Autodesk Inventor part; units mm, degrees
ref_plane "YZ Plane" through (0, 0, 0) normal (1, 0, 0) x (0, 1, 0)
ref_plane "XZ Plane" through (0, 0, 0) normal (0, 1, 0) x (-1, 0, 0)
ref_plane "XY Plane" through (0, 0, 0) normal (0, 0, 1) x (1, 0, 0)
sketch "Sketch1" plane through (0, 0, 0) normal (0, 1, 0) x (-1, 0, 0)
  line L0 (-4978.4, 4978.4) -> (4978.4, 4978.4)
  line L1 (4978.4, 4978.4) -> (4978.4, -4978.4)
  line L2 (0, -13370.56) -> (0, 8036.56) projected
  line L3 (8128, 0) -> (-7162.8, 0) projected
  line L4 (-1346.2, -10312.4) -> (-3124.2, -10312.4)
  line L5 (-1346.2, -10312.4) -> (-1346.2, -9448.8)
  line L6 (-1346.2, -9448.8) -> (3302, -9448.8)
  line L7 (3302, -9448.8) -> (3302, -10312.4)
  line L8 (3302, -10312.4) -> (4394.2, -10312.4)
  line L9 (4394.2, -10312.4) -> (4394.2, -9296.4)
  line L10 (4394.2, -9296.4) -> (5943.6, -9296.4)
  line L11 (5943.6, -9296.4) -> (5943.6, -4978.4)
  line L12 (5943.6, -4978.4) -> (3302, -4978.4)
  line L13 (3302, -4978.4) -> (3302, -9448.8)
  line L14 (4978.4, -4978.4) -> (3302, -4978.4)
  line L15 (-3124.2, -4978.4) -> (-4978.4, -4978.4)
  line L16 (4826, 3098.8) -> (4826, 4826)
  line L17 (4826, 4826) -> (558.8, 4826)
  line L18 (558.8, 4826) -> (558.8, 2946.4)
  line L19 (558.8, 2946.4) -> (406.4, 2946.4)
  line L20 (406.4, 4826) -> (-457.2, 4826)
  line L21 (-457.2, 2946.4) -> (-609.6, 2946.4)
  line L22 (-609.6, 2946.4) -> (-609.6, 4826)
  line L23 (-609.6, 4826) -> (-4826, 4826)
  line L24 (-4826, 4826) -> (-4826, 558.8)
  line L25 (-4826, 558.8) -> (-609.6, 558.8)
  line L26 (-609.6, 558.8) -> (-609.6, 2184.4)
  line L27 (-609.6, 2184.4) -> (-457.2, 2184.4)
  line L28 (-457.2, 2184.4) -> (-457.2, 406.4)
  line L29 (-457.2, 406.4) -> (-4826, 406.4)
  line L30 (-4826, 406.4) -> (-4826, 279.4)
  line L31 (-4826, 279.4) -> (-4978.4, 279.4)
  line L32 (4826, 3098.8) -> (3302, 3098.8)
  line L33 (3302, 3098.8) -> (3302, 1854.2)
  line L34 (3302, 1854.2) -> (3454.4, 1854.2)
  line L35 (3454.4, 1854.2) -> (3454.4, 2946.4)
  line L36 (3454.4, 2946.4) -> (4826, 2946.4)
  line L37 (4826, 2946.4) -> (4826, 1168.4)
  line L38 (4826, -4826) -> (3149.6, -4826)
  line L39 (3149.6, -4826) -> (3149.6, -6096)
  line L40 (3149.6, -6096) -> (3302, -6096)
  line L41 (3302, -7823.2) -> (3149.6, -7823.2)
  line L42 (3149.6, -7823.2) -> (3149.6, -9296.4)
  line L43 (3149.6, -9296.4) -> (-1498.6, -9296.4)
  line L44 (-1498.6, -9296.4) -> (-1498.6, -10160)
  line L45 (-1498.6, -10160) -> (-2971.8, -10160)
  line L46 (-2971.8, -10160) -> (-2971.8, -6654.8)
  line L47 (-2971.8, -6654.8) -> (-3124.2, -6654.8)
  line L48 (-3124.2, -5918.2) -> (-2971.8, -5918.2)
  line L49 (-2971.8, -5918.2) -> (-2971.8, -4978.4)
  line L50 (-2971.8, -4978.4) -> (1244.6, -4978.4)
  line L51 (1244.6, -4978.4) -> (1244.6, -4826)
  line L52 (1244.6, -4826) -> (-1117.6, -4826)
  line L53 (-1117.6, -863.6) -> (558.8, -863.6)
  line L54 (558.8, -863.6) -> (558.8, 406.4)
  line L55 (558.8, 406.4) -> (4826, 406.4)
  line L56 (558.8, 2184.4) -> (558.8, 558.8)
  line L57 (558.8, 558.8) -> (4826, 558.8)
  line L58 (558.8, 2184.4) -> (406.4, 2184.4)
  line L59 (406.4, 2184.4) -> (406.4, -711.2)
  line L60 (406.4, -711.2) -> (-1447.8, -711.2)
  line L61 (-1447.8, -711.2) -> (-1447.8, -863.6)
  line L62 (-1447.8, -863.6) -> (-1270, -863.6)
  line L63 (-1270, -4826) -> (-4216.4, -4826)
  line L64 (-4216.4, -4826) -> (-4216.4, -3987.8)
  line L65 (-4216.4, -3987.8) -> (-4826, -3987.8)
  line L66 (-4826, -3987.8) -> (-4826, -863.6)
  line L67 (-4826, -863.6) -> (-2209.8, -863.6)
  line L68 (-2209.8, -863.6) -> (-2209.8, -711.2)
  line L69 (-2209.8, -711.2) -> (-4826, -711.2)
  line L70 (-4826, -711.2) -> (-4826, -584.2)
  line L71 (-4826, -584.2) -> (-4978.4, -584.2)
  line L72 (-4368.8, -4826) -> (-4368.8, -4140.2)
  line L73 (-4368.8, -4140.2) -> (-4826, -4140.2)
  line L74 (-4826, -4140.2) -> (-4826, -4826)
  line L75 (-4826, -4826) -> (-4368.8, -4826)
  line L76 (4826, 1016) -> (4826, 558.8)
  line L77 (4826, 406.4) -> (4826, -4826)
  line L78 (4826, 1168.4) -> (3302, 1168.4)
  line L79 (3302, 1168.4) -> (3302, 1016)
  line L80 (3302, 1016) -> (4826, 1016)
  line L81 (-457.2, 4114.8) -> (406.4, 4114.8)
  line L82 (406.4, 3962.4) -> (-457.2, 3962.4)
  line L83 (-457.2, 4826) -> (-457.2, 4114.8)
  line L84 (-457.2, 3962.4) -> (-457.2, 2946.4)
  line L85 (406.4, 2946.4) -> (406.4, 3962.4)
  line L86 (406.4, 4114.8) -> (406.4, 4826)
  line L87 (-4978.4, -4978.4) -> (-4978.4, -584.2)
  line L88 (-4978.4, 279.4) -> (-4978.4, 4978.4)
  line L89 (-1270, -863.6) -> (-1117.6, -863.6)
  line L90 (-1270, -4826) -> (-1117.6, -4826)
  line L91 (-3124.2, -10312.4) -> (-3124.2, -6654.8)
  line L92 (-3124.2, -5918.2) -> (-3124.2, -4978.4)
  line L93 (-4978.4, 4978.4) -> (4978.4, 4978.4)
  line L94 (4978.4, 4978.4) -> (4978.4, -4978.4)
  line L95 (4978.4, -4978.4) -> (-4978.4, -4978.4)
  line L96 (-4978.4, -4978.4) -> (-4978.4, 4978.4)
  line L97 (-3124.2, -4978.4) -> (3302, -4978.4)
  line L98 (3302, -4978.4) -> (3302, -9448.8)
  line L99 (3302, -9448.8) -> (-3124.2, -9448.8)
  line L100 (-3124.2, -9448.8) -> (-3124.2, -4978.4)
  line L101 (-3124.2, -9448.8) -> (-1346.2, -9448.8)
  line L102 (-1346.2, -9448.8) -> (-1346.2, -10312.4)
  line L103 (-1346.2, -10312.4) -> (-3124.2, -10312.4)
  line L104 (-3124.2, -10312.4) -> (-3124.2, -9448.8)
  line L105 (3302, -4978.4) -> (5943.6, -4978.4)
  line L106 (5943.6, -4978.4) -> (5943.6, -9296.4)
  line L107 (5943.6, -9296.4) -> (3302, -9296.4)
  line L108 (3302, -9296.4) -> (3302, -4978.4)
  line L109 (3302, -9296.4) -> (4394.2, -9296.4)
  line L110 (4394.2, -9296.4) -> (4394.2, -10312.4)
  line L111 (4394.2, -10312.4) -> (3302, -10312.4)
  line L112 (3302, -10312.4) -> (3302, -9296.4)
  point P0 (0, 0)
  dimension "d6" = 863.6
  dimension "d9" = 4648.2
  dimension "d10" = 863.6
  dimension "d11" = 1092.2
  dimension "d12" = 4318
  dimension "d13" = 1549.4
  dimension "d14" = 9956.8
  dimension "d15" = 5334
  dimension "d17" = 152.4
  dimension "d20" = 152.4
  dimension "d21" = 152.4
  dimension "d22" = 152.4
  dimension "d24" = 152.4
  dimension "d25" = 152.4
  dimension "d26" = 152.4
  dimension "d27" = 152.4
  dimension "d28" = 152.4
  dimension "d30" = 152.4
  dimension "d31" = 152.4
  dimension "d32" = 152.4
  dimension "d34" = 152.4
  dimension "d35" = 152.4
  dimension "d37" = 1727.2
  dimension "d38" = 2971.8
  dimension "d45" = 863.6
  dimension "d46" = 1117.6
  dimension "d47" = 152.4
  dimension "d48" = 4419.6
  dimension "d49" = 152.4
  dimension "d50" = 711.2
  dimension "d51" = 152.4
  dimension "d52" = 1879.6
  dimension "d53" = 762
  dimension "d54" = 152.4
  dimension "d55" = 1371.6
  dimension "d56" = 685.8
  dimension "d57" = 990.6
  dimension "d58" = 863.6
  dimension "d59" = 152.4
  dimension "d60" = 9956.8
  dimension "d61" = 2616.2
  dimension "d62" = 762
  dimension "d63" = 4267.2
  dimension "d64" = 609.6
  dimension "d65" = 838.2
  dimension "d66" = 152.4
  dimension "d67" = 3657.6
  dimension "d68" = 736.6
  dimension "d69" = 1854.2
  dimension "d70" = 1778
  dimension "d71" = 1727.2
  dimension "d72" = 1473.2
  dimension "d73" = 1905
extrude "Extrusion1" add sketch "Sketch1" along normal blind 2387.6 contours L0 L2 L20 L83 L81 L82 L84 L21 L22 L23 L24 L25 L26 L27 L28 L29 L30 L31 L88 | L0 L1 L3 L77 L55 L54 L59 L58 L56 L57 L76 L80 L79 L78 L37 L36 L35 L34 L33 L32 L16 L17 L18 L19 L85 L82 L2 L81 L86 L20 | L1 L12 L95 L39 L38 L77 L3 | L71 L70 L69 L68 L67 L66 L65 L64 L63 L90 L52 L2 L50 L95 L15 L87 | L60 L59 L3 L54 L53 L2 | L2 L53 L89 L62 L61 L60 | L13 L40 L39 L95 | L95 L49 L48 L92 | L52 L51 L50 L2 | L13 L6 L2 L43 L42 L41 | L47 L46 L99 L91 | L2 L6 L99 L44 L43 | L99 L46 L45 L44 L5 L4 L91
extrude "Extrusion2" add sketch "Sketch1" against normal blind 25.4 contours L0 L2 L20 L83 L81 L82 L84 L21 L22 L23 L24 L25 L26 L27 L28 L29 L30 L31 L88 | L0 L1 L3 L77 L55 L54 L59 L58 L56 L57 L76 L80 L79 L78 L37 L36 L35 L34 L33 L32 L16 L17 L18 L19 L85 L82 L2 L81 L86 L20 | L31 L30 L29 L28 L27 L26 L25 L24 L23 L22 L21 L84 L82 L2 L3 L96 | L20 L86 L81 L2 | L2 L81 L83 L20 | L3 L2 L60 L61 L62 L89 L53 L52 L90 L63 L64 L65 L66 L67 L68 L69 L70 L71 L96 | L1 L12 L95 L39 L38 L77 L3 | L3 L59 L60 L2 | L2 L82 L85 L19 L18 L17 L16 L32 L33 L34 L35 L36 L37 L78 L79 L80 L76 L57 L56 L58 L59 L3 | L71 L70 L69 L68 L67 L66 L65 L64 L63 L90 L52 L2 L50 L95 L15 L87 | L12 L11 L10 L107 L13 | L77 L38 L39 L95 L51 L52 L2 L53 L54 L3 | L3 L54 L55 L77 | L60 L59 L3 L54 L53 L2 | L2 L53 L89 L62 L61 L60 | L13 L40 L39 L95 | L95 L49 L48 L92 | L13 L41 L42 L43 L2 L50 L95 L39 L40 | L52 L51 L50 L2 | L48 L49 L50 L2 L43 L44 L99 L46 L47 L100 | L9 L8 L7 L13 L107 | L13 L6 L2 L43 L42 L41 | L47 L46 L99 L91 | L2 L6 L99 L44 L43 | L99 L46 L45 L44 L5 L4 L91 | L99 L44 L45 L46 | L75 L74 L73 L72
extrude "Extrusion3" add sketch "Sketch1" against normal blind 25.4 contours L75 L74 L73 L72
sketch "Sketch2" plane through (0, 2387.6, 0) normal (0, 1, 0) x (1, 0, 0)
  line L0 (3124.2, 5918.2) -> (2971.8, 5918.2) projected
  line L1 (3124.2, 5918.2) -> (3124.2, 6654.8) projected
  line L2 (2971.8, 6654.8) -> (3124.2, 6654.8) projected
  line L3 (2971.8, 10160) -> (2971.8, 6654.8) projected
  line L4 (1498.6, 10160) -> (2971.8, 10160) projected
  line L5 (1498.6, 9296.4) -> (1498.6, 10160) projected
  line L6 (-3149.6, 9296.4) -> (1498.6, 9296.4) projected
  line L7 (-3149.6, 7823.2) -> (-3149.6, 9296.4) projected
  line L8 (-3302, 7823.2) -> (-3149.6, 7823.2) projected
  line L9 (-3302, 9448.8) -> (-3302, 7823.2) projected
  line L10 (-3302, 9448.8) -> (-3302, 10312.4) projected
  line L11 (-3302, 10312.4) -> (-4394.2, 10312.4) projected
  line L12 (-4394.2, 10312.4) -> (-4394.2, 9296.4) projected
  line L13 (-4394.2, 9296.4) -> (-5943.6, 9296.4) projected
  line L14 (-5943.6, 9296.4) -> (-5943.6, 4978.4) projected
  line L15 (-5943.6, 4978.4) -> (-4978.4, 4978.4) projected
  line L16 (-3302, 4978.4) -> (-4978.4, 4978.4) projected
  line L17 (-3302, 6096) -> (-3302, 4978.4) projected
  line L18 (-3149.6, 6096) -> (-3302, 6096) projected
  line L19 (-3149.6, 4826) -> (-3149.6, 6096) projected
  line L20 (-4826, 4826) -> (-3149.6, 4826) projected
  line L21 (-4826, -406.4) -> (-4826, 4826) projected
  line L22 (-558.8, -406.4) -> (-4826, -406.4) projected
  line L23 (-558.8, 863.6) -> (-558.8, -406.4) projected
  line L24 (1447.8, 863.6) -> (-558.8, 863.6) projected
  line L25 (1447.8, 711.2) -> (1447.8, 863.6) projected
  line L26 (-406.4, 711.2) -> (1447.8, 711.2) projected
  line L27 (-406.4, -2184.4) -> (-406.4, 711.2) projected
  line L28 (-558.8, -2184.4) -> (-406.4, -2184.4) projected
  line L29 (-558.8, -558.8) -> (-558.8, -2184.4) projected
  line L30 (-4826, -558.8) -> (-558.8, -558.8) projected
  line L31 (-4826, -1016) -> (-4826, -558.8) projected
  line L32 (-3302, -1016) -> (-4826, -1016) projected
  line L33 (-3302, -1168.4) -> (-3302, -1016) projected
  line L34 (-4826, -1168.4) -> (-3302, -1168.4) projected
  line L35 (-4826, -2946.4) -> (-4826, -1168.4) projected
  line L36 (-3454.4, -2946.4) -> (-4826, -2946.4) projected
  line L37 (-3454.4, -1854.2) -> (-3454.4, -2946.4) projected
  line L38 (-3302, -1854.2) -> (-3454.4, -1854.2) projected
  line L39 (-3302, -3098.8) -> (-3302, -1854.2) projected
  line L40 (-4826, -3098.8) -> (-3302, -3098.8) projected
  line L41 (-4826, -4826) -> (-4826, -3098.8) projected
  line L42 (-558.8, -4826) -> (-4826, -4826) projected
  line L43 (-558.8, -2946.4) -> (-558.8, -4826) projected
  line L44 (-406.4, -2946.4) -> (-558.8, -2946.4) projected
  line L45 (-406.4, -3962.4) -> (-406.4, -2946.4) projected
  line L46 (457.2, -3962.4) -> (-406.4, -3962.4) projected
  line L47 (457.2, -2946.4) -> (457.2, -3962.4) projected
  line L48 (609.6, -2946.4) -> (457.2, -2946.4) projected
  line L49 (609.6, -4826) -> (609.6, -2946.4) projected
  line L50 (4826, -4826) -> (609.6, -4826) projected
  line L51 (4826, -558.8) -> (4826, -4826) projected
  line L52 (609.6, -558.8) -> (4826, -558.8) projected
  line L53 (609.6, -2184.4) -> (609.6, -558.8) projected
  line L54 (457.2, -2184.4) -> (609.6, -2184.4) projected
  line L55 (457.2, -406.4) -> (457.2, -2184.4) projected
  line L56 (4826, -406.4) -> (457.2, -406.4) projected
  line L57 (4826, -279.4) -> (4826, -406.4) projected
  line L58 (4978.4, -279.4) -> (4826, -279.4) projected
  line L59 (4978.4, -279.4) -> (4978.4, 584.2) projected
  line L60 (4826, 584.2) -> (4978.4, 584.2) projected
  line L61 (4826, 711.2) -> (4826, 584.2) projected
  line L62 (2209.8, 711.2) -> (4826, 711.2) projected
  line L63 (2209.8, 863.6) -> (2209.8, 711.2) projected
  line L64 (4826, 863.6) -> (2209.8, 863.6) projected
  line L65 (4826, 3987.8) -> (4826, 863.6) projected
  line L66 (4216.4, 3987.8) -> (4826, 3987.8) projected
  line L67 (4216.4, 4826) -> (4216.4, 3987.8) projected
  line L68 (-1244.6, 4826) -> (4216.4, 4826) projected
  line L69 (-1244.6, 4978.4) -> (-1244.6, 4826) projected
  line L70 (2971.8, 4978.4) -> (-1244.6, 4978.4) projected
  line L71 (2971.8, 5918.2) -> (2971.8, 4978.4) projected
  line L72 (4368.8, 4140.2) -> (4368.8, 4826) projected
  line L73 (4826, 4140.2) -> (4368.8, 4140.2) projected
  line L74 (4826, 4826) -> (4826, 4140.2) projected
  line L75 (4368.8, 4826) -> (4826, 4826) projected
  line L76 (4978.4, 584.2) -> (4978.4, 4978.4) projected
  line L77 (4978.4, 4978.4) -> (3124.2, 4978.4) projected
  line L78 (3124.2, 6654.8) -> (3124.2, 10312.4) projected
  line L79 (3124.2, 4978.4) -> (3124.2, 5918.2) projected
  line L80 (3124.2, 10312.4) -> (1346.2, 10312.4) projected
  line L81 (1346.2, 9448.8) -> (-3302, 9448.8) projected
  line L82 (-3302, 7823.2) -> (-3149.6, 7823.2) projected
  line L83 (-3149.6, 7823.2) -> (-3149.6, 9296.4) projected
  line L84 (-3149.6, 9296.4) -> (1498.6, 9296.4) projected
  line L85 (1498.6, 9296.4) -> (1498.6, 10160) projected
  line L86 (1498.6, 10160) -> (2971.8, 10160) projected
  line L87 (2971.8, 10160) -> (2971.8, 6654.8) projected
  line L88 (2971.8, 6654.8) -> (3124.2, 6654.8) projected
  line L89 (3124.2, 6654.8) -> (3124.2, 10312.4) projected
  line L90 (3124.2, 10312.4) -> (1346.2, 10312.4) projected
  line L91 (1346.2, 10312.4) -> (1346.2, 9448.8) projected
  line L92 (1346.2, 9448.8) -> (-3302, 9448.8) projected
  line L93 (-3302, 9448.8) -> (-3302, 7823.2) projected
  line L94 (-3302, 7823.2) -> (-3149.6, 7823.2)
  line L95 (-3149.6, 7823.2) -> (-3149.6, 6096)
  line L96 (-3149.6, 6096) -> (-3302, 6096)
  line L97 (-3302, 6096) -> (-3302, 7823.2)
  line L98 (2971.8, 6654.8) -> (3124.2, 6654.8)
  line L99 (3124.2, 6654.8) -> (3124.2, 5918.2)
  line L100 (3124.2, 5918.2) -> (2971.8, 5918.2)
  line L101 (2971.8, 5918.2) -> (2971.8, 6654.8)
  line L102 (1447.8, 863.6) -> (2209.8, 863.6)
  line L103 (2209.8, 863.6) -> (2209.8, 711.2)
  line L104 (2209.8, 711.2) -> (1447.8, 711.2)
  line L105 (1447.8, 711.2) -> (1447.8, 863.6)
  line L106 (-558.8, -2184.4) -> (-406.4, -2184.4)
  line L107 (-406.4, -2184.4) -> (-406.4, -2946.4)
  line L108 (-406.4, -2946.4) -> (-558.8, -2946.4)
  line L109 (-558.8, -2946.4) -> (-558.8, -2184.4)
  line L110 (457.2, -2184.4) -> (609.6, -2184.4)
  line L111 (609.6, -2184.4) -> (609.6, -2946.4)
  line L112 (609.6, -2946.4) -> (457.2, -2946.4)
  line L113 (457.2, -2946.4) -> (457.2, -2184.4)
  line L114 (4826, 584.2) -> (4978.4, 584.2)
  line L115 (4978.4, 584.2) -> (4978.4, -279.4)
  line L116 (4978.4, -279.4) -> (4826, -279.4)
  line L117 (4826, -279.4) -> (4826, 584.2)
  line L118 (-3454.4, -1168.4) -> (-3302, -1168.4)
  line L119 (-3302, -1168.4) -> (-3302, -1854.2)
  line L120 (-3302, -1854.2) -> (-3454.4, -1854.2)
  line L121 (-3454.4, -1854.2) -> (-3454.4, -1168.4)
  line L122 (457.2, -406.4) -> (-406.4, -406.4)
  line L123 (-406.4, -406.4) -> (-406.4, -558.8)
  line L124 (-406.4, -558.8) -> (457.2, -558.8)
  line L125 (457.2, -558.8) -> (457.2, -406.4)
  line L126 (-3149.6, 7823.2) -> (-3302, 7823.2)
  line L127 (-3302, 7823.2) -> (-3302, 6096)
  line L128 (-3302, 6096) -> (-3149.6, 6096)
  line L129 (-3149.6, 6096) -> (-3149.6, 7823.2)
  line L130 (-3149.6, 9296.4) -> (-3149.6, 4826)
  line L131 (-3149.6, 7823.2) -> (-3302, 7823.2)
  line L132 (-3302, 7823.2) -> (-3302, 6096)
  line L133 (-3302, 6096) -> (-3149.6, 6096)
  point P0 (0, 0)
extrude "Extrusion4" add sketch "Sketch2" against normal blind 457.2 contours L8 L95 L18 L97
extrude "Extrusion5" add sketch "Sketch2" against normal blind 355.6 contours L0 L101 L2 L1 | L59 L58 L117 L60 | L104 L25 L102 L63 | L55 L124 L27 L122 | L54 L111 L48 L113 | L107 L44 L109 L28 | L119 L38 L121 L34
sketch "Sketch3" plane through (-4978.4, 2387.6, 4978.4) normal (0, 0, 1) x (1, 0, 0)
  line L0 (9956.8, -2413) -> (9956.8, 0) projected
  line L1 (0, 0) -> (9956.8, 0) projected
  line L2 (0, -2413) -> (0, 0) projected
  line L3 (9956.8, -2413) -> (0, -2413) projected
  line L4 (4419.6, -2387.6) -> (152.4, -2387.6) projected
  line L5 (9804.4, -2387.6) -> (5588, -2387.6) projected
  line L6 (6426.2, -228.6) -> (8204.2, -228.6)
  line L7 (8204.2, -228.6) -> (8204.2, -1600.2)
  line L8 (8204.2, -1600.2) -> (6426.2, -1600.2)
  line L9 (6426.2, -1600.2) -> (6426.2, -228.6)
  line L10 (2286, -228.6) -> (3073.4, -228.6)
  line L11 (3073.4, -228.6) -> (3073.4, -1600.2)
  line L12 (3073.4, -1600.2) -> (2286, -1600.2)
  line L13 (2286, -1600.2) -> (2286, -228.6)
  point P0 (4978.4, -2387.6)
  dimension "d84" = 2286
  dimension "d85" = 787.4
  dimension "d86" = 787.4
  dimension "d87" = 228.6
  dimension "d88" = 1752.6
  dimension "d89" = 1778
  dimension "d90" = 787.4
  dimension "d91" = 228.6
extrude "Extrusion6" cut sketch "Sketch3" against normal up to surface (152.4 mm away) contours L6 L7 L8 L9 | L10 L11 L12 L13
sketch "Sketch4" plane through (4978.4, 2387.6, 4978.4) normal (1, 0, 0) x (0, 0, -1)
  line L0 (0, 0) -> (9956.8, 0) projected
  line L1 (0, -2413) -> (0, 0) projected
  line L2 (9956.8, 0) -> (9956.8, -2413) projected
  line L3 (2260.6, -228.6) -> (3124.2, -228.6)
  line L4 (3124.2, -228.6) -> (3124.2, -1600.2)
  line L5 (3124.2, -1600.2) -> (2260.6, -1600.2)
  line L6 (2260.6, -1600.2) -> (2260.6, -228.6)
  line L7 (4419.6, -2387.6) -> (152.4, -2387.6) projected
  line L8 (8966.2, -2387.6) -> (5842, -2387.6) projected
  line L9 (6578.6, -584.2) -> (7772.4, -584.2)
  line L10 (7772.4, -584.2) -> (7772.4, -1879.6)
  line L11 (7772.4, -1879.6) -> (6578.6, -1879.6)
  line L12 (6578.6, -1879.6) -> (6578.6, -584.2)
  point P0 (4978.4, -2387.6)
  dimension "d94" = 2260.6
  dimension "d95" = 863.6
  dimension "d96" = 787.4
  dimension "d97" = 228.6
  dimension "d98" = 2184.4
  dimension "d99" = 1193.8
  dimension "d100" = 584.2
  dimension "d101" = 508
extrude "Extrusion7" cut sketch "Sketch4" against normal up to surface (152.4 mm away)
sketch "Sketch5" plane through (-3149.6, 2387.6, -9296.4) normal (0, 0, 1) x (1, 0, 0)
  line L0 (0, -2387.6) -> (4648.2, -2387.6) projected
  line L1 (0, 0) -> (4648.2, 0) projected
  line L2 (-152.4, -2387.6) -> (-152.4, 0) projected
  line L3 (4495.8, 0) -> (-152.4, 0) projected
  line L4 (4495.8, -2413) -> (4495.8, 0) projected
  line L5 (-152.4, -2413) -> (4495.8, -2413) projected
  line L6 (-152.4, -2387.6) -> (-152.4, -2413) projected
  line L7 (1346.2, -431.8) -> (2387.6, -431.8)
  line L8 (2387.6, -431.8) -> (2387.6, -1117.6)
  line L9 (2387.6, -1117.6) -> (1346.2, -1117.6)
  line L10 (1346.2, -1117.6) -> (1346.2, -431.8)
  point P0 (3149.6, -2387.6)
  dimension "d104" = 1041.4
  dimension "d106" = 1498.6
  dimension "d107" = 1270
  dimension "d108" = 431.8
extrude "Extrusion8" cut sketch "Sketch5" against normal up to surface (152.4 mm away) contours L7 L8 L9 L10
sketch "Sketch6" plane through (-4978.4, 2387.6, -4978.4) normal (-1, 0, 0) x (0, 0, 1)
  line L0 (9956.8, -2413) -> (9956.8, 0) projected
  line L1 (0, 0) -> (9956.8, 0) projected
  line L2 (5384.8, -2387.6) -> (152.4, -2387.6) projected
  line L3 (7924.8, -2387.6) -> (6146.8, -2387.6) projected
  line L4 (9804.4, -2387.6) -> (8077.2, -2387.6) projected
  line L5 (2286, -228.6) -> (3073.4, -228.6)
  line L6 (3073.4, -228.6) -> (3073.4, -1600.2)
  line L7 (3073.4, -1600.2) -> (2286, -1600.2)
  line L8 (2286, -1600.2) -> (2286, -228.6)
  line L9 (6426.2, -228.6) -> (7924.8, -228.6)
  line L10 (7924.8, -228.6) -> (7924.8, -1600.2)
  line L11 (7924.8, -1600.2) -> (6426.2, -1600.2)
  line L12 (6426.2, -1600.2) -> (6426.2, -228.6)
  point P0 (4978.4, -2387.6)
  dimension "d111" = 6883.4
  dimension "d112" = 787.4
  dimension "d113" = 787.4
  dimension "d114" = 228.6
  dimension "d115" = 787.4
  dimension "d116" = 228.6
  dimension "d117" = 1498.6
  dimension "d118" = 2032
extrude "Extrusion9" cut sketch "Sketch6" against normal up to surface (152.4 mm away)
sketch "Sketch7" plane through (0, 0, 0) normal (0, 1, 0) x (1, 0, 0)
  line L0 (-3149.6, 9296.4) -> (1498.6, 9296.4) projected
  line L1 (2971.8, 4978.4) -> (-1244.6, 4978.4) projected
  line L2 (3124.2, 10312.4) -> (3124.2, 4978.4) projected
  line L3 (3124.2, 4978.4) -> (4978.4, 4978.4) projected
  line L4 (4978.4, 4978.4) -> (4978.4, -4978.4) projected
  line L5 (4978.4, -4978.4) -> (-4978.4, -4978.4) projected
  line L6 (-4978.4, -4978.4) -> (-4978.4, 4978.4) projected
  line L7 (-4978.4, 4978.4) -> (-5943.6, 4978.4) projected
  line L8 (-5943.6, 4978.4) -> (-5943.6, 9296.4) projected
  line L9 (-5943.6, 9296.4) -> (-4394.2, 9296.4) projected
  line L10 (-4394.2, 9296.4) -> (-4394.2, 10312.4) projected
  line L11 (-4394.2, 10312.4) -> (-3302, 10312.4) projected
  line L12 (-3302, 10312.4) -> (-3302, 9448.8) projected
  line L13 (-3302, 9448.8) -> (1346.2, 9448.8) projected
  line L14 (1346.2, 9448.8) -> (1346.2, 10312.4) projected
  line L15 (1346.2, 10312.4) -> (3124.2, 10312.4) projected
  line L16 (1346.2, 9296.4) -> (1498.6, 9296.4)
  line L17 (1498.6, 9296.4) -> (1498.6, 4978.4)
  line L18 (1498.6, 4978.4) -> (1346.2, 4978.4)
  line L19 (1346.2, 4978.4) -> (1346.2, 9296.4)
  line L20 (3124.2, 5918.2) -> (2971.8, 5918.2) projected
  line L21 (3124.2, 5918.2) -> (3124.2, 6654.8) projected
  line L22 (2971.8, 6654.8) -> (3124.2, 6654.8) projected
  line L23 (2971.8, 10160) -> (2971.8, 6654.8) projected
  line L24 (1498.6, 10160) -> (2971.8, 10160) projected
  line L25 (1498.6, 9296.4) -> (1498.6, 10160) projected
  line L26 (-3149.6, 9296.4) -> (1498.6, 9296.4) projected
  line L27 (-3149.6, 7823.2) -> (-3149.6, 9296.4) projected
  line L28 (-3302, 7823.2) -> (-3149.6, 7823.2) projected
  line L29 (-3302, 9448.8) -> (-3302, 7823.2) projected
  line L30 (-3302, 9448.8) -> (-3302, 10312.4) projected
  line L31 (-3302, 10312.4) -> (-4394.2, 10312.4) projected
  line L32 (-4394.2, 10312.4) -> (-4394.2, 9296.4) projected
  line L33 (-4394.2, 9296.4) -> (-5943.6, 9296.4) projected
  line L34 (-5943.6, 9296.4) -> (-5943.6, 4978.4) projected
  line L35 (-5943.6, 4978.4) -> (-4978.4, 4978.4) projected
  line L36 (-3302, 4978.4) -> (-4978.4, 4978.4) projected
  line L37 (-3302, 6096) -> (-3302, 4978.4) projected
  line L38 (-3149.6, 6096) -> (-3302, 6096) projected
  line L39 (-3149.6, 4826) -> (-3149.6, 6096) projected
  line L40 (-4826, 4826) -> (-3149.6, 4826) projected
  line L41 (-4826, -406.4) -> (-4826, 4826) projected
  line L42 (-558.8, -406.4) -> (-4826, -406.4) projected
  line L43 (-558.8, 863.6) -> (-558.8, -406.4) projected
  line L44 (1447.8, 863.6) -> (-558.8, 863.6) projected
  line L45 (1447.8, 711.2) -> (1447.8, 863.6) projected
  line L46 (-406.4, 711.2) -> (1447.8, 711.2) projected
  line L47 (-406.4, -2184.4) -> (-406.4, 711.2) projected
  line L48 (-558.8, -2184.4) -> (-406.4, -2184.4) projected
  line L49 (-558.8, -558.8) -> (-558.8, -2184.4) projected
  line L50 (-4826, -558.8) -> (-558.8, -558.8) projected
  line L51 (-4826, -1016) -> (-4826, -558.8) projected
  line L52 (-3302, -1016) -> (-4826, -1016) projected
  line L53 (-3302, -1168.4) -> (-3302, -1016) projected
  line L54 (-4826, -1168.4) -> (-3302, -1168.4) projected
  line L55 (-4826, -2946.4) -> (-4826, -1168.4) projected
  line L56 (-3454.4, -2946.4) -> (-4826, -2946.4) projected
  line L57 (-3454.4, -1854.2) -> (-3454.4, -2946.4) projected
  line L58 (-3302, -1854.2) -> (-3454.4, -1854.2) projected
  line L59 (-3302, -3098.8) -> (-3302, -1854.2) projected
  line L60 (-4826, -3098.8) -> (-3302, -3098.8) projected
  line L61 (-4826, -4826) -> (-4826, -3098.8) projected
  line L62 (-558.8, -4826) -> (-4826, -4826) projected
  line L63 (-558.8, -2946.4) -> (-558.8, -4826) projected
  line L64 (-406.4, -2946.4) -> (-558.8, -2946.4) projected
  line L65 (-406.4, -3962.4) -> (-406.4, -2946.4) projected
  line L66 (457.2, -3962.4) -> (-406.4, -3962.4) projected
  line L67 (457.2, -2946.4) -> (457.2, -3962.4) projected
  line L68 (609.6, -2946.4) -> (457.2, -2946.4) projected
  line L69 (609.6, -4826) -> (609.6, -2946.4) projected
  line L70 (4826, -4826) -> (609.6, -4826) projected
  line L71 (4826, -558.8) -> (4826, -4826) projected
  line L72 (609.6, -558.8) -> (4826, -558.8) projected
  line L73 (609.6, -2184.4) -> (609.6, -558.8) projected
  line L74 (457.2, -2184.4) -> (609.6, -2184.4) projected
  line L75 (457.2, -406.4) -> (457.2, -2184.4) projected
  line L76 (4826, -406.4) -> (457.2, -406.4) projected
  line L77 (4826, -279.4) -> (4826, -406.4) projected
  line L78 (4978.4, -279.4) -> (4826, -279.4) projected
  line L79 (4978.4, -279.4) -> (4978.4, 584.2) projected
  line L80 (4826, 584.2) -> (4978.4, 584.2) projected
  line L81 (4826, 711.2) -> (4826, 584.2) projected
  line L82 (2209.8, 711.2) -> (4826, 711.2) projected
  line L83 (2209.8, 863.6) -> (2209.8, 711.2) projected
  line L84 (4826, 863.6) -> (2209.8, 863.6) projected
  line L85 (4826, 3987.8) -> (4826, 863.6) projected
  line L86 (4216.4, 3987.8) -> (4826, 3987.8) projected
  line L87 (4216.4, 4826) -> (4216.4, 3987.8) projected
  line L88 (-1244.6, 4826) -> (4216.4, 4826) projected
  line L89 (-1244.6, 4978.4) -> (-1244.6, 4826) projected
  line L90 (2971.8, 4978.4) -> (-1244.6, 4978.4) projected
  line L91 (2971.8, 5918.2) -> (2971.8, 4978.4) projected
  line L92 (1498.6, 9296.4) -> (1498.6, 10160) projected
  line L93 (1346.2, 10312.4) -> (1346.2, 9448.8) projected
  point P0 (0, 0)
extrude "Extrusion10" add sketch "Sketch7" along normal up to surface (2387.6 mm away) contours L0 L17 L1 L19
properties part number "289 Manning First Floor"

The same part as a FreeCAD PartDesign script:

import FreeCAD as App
import Part
import Sketcher
Q = App.Units.Quantity


def add_polygon(sketch, points):
    """Adds a closed chain of lines whose ends are joined by coincident constraints."""
    first, n = sketch.GeometryCount, len(points)
    for a, b in zip(points, points[1:] + points[:1]):
        sketch.addGeometry(Part.LineSegment(App.Vector(*a, 0), App.Vector(*b, 0)), False)
    for i in range(n):
        sketch.addConstraint(Sketcher.Constraint("Coincident", first + i, 2, first + (i + 1) % n, 1))

doc = App.newDocument("Part")
body = doc.addObject("PartDesign::Body", "Body")
body.AllowCompound = True

# Sketch on XZ plane
sketch1 = doc.addObject("Sketcher::SketchObject", "Sketch")
body.addObject(sketch1)
sketch1.AttachmentSupport = (doc.XZ_Plane, [""])
sketch1.MapMode = "FlatFace"
add_polygon(sketch1, [(4978, 4978), (4978, 279), (4826, 279), (4826, 406), (457, 406), (457, 2184), (610, 2184), (610, 559), (4826, 559), (4826, 4826), (610, 4826), (610, 2946), (457, 2946), (457, 3962), (-406, 3962), (-406, 2946), (-559, 2946), (-559, 4826), (-4826, 4826), (-4826, 3099), (-3302, 3099), (-3302, 1854), (-3454, 1854), (-3454, 2946), (-4826, 2946), (-4826, 1168), (-3302, 1168), (-3302, 1016), (-4826, 1016), (-4826, 559), (-559, 559), (-559, 2184), (-406, 2184), (-406, -711), (1448, -711), (1448, -864), (-559, -864), (-559, 406), (-4826, 406), (-4826, -4826), (-3150, -4826), (-3150, -6096), (-3302, -6096), (-3302, -4978), (-4978, -4978), (-4978, 4978)])  # lines 0-45
add_polygon(sketch1, [(457, 4826), (-406, 4826), (-406, 4115), (457, 4115)])  # lines 46-49
add_polygon(sketch1, [(4826, -584), (4978, -584), (4978, -4978), (3124, -4978), (3124, -5918), (2972, -5918), (2972, -4978), (-1245, -4978), (-1245, -4826), (4216, -4826), (4216, -3988), (4826, -3988), (4826, -864), (2210, -864), (2210, -711), (4826, -711)])  # lines 50-65
add_polygon(sketch1, [(4369, -4140), (4369, -4826), (4826, -4826), (4826, -4140)])  # lines 66-69
add_polygon(sketch1, [(-3302, -7823), (-3150, -7823), (-3150, -9296), (1499, -9296), (1499, -10160), (2972, -10160), (2972, -6655), (3124, -6655), (3124, -10312), (1346, -10312), (1346, -9449), (-3302, -9449)])  # lines 70-81
sketch1.addConstraint(Sketcher.Constraint("Vertical", 0))
sketch1.addConstraint(Sketcher.Constraint("Horizontal", 1))
sketch1.addConstraint(Sketcher.Constraint("Vertical", 2))
sketch1.addConstraint(Sketcher.Constraint("Horizontal", 3))
sketch1.addConstraint(Sketcher.Constraint("Vertical", 4))
sketch1.addConstraint(Sketcher.Constraint("Horizontal", 5))
sketch1.addConstraint(Sketcher.Constraint("Vertical", 6))
sketch1.addConstraint(Sketcher.Constraint("Horizontal", 7))
sketch1.addConstraint(Sketcher.Constraint("Vertical", 8))
sketch1.addConstraint(Sketcher.Constraint("Horizontal", 9))
sketch1.addConstraint(Sketcher.Constraint("Vertical", 10))
sketch1.addConstraint(Sketcher.Constraint("Horizontal", 11))
sketch1.addConstraint(Sketcher.Constraint("Vertical", 12))
sketch1.addConstraint(Sketcher.Constraint("Horizontal", 13))
sketch1.addConstraint(Sketcher.Constraint("Vertical", 14))
sketch1.addConstraint(Sketcher.Constraint("Horizontal", 15))
sketch1.addConstraint(Sketcher.Constraint("Vertical", 16))
sketch1.addConstraint(Sketcher.Constraint("Horizontal", 17))
sketch1.addConstraint(Sketcher.Constraint("Vertical", 18))
sketch1.addConstraint(Sketcher.Constraint("Horizontal", 19))
sketch1.addConstraint(Sketcher.Constraint("Vertical", 20))
sketch1.addConstraint(Sketcher.Constraint("Horizontal", 21))
sketch1.addConstraint(Sketcher.Constraint("Vertical", 22))
sketch1.addConstraint(Sketcher.Constraint("Horizontal", 23))
sketch1.addConstraint(Sketcher.Constraint("Vertical", 24))
sketch1.addConstraint(Sketcher.Constraint("Horizontal", 25))
sketch1.addConstraint(Sketcher.Constraint("Vertical", 26))
sketch1.addConstraint(Sketcher.Constraint("Horizontal", 27))
sketch1.addConstraint(Sketcher.Constraint("Vertical", 28))
sketch1.addConstraint(Sketcher.Constraint("Horizontal", 29))
sketch1.addConstraint(Sketcher.Constraint("Vertical", 30))
sketch1.addConstraint(Sketcher.Constraint("Horizontal", 31))
sketch1.addConstraint(Sketcher.Constraint("Vertical", 32))
sketch1.addConstraint(Sketcher.Constraint("Horizontal", 33))
sketch1.addConstraint(Sketcher.Constraint("Vertical", 34))
sketch1.addConstraint(Sketcher.Constraint("Horizontal", 35))
sketch1.addConstraint(Sketcher.Constraint("Vertical", 36))
sketch1.addConstraint(Sketcher.Constraint("Horizontal", 37))
sketch1.addConstraint(Sketcher.Constraint("Vertical", 38))
sketch1.addConstraint(Sketcher.Constraint("Horizontal", 39))
sketch1.addConstraint(Sketcher.Constraint("Vertical", 40))
sketch1.addConstraint(Sketcher.Constraint("Horizontal", 41))
sketch1.addConstraint(Sketcher.Constraint("Vertical", 42))
sketch1.addConstraint(Sketcher.Constraint("Horizontal", 43))
sketch1.addConstraint(Sketcher.Constraint("Vertical", 44))
sketch1.addConstraint(Sketcher.Constraint("Horizontal", 45))
sketch1.addConstraint(Sketcher.Constraint("Horizontal", 46))
sketch1.addConstraint(Sketcher.Constraint("Vertical", 47))
sketch1.addConstraint(Sketcher.Constraint("Horizontal", 48))
sketch1.addConstraint(Sketcher.Constraint("Vertical", 49))
sketch1.addConstraint(Sketcher.Constraint("Horizontal", 50))
sketch1.addConstraint(Sketcher.Constraint("Vertical", 51))
sketch1.addConstraint(Sketcher.Constraint("Horizontal", 52))
sketch1.addConstraint(Sketcher.Constraint("Vertical", 53))
sketch1.addConstraint(Sketcher.Constraint("Horizontal", 54))
sketch1.addConstraint(Sketcher.Constraint("Vertical", 55))
sketch1.addConstraint(Sketcher.Constraint("Horizontal", 56))
sketch1.addConstraint(Sketcher.Constraint("Vertical", 57))
sketch1.addConstraint(Sketcher.Constraint("Horizontal", 58))
sketch1.addConstraint(Sketcher.Constraint("Vertical", 59))
sketch1.addConstraint(Sketcher.Constraint("Horizontal", 60))
sketch1.addConstraint(Sketcher.Constraint("Vertical", 61))
sketch1.addConstraint(Sketcher.Constraint("Horizontal", 62))
sketch1.addConstraint(Sketcher.Constraint("Vertical", 63))
sketch1.addConstraint(Sketcher.Constraint("Horizontal", 64))
sketch1.addConstraint(Sketcher.Constraint("Vertical", 65))
sketch1.addConstraint(Sketcher.Constraint("Vertical", 66))
sketch1.addConstraint(Sketcher.Constraint("Horizontal", 67))
sketch1.addConstraint(Sketcher.Constraint("Vertical", 68))
sketch1.addConstraint(Sketcher.Constraint("Horizontal", 69))
sketch1.addConstraint(Sketcher.Constraint("Horizontal", 70))
sketch1.addConstraint(Sketcher.Constraint("Vertical", 71))
sketch1.addConstraint(Sketcher.Constraint("Horizontal", 72))
sketch1.addConstraint(Sketcher.Constraint("Vertical", 73))
sketch1.addConstraint(Sketcher.Constraint("Horizontal", 74))
sketch1.addConstraint(Sketcher.Constraint("Vertical", 75))
sketch1.addConstraint(Sketcher.Constraint("Horizontal", 76))
sketch1.addConstraint(Sketcher.Constraint("Vertical", 77))
sketch1.addConstraint(Sketcher.Constraint("Horizontal", 78))
sketch1.addConstraint(Sketcher.Constraint("Vertical", 79))
sketch1.addConstraint(Sketcher.Constraint("Horizontal", 80))
sketch1.addConstraint(Sketcher.Constraint("Vertical", 81))
sketch1.addConstraint(Sketcher.Constraint("Symmetric", 8, 2, 38, 2, -1, 1))
sketch1.addConstraint(Sketcher.Constraint("Symmetric", 43, 2, 45, 2, -1, 1))
sketch1.addConstraint(Sketcher.Constraint("Symmetric", 44, 2, 51, 2, -1, 1))
sketch1.addConstraint(Sketcher.Constraint("Symmetric", 17, 2, 67, 2, -1, 1))
sketch1.addConstraint(Sketcher.Constraint("Symmetric", 8, 2, 17, 2, -2))
sketch1.addConstraint(Sketcher.Constraint("Symmetric", 7, 2, 28, 2, -2))
sketch1.addConstraint(Sketcher.Constraint("Symmetric", 2, 2, 37, 2, -2))
sketch1.addConstraint(Sketcher.Constraint("Horizontal", 11, 2, 14, 2))
sketch1.addConstraint(Sketcher.Constraint("Horizontal", 15, 2, 22, 2))
sketch1.addConstraint(Sketcher.Constraint("Horizontal", 5, 2, 30, 2))
sketch1.addConstraint(Sketcher.Constraint("Horizontal", 17, 2, 46, 2))
sketch1.addConstraint(Sketcher.Constraint("Horizontal", 52, 2, 55, 2))
sketch1.addConstraint(Sketcher.Constraint("Horizontal", 39, 2, 57, 2))
sketch1.addConstraint(Sketcher.Constraint("Horizontal", 35, 2, 61, 2))
sketch1.addConstraint(Sketcher.Constraint("Horizontal", 33, 2, 63, 2))
sketch1.addConstraint(Sketcher.Constraint("Vertical", 6, 2, 9, 2))
sketch1.addConstraint(Sketcher.Constraint("Vertical", 4, 2, 11, 2))
sketch1.addConstraint(Sketcher.Constraint("Vertical", 18, 2, 23, 2))
sketch1.addConstraint(Sketcher.Constraint("Vertical", 20, 2, 25, 2))
sketch1.addConstraint(Sketcher.Constraint("Vertical", 16, 2, 29, 2))
sketch1.addConstraint(Sketcher.Constraint("Vertical", 14, 2, 31, 2))
sketch1.addConstraint(Sketcher.Constraint("Vertical", 30, 2, 35, 2))
sketch1.addConstraint(Sketcher.Constraint("Vertical", 26, 2, 41, 2))
sketch1.addConstraint(Sketcher.Constraint("Vertical", 32, 2, 46, 2))
sketch1.addConstraint(Sketcher.Constraint("Vertical", 12, 2, 48, 2))
sketch1.addConstraint(Sketcher.Constraint("Vertical", 8, 2, 60, 2))
sketch1.addConstraint(Sketcher.Constraint("Vertical", 61, 2, 64, 2))
sketch1.addConstraint(Sketcher.Constraint("Vertical", 40, 2, 70, 2))
sketch1.addConstraint(Sketcher.Constraint("Vertical", 55, 2, 74, 2))
sketch1.addConstraint(Sketcher.Constraint("Vertical", 53, 2, 76, 2))
sketch1.addConstraint(Sketcher.Constraint("Vertical", 42, 2, 80, 2))
sketch1.addConstraint(Sketcher.Constraint("Equal", 1, 5))
sketch1.addConstraint(Sketcher.Constraint("Equal", 11, 15))
sketch1.addConstraint(Sketcher.Constraint("Equal", 15, 21))
sketch1.addConstraint(Sketcher.Constraint("Equal", 31, 41))
sketch1.addConstraint(Sketcher.Constraint("Equal", 33, 52))
sketch1.addConstraint(Sketcher.Constraint("Equal", 50, 54))
sketch1.addConstraint(Sketcher.Constraint("Equal", 9, 56))
sketch1.addConstraint(Sketcher.Constraint("Equal", 72, 80))
sketch1.addConstraint(Sketcher.Constraint("Equal", 78, 4))
sketch1.addConstraint(Sketcher.Constraint("Equal", 37, 8))
sketch1.addConstraint(Sketcher.Constraint("Equal", 4, 24))
sketch1.addConstraint(Sketcher.Constraint("Equal", 76, 26))
sketch1.addConstraint(Sketcher.Constraint("Equal", 69, 28))
sketch1.addConstraint(Sketcher.Constraint("Equal", 26, 34))
sketch1.addConstraint(Sketcher.Constraint("Equal", 36, 40))
sketch1.addConstraint(Sketcher.Constraint("Equal", 45, 44))
sketch1.addConstraint(Sketcher.Constraint("Equal", 34, 57))
sketch1.addConstraint(Sketcher.Constraint("Equal", 2, 65))
sketch1.addConstraint(Sketcher.Constraint("Equal", 74, 71))
sketch1.addConstraint(Sketcher.Constraint("Equal", 48, 73))
sketch1.addConstraint(Sketcher.Constraint("Equal", 73, 79))
sketch1.addConstraint(Sketcher.Constraint("Equal", 30, 81))
sketch1.addConstraint(Sketcher.Constraint("DistanceX", 1, 2, 1, 1, Q("6 in")))
sketch1.addConstraint(Sketcher.Constraint("DistanceX", 13, 2, 13, 1, Q("34 in")))
sketch1.addConstraint(Sketcher.Constraint("DistanceX", 17, 2, 17, 1, Q("168 in")))
sketch1.addConstraint(Sketcher.Constraint("DistanceX", 23, 2, 23, 1, Q("54 in")))
sketch1.addConstraint(Sketcher.Constraint("DistanceX", 33, 1, 33, 2, Q("73 in")))
sketch1.addConstraint(Sketcher.Constraint("DistanceX", 45, 1, 45, 2, Q("392 in")))
sketch1.addConstraint(Sketcher.Constraint("DistanceX", 60, 1, 60, 2, Q("24 in")))
sketch1.addConstraint(Sketcher.Constraint("DistanceX", 62, 2, 62, 1, Q("103 in")))
sketch1.addConstraint(Sketcher.Constraint("DistanceX", 72, 1, 72, 2, Q("183 in")))
sketch1.addConstraint(Sketcher.Constraint("DistanceY", 10, 2, 10, 1, Q("74 in")))
sketch1.addConstraint(Sketcher.Constraint("DistanceY", 18, 2, 18, 1, Q("68 in")))
sketch1.addConstraint(Sketcher.Constraint("DistanceY", 22, 1, 22, 2, Q("43 in")))
sketch1.addConstraint(Sketcher.Constraint("DistanceY", 42, 1, 42, 2, Q("44 in")))
sketch1.addConstraint(Sketcher.Constraint("DistanceY", 47, 2, 47, 1, Q("28 in")))
sketch1.addConstraint(Sketcher.Constraint("DistanceY", 59, 1, 59, 2, Q("33 in")))
sketch1.addConstraint(Sketcher.Constraint("DistanceY", 66, 2, 66, 1, Q("27 in")))
sketch1.addConstraint(Sketcher.Constraint("DistanceY", 77, 2, 77, 1, Q("144 in")))
sketch1.addConstraint(Sketcher.Constraint("DistanceY", 32, 2, -1, 1, Q("28 in")))
sketch1.addConstraint(Sketcher.Constraint("DistanceY", 0, 2, 0, 1, Q("185 in")))
sketch1.addConstraint(Sketcher.Constraint("DistanceY", 12, 1, 12, 2, Q("40 in")))
sketch1.addConstraint(Sketcher.Constraint("DistanceY", 53, 2, 53, 1, Q("37 in")))
sketch1.addConstraint(Sketcher.Constraint("DistanceY", 70, 2, -1, 1, Q("308 in")))
pad1 = doc.addObject("PartDesign::Pad", "Pad")
body.addObject(pad1)
pad1.Profile = sketch1
pad1.Length = Q("94 in")
pad1.Reversed = True

# Sketch on XZ plane
sketch2 = doc.addObject("Sketcher::SketchObject", "Sketch001")
body.addObject(sketch2)
sketch2.AttachmentSupport = (doc.XZ_Plane, [""])
sketch2.MapMode = "FlatFace"
add_polygon(sketch2, [(4978, 4978), (4978, -4978), (3124, -4978), (3124, -10312), (1346, -10312), (1346, -9449), (-3302, -9449), (-3302, -10312), (-4394, -10312), (-4394, -9296), (-5944, -9296), (-5944, -4978), (-4978, -4978), (-4978, 4978)])  # lines 0-13
sketch2.addConstraint(Sketcher.Constraint("Vertical", 0))
sketch2.addConstraint(Sketcher.Constraint("Horizontal", 1))
sketch2.addConstraint(Sketcher.Constraint("Vertical", 2))
sketch2.addConstraint(Sketcher.Constraint("Horizontal", 3))
sketch2.addConstraint(Sketcher.Constraint("Vertical", 4))
sketch2.addConstraint(Sketcher.Constraint("Horizontal", 5))
sketch2.addConstraint(Sketcher.Constraint("Vertical", 6))
sketch2.addConstraint(Sketcher.Constraint("Horizontal", 7))
sketch2.addConstraint(Sketcher.Constraint("Vertical", 8))
sketch2.addConstraint(Sketcher.Constraint("Horizontal", 9))
sketch2.addConstraint(Sketcher.Constraint("Vertical", 10))
sketch2.addConstraint(Sketcher.Constraint("Horizontal", 11))
sketch2.addConstraint(Sketcher.Constraint("Vertical", 12))
sketch2.addConstraint(Sketcher.Constraint("Horizontal", 13))
sketch2.addConstraint(Sketcher.Constraint("Symmetric", 0, 2, 12, 2, -1, 1))
sketch2.addConstraint(Sketcher.Constraint("Horizontal", 3, 2, 6, 2))
sketch2.addConstraint(Sketcher.Constraint("Horizontal", 1, 2, 10, 2))
sketch2.addConstraint(Sketcher.Constraint("Equal", 13, 0))
sketch2.addConstraint(Sketcher.Constraint("DistanceX", 1, 2, 1, 1, Q("73 in")))
sketch2.addConstraint(Sketcher.Constraint("DistanceX", 3, 2, 3, 1, Q("70 in")))
sketch2.addConstraint(Sketcher.Constraint("DistanceX", 5, 2, 5, 1, Q("183 in")))
sketch2.addConstraint(Sketcher.Constraint("DistanceX", 7, 2, 7, 1, Q("43 in")))
sketch2.addConstraint(Sketcher.Constraint("DistanceX", 9, 2, 9, 1, Q("61 in")))
sketch2.addConstraint(Sketcher.Constraint("DistanceX", 13, 1, 13, 2, Q("392 in")))
sketch2.addConstraint(Sketcher.Constraint("DistanceY", 2, 2, 2, 1, Q("210 in")))
sketch2.addConstraint(Sketcher.Constraint("DistanceY", 4, 1, 4, 2, Q("34 in")))
sketch2.addConstraint(Sketcher.Constraint("DistanceY", 10, 1, 10, 2, Q("170 in")))
pad2 = doc.addObject("PartDesign::Pad", "Pad001")
body.addObject(pad2)
pad2.Profile = sketch2
pad2.Length = Q("1 in")

# Sketch on XZ plane
sketch3 = doc.addObject("Sketcher::SketchObject", "Sketch002")
body.addObject(sketch3)
sketch3.AttachmentSupport = (doc.XZ_Plane, [""])
sketch3.MapMode = "FlatFace"
add_polygon(sketch3, [(4826, -4826), (4369, -4826), (4369, -4140), (4826, -4140)])  # lines 0-3
sketch3.addConstraint(Sketcher.Constraint("Horizontal", 0))
sketch3.addConstraint(Sketcher.Constraint("Vertical", 1))
sketch3.addConstraint(Sketcher.Constraint("Horizontal", 2))
sketch3.addConstraint(Sketcher.Constraint("Vertical", 3))
sketch3.addConstraint(Sketcher.Constraint("DistanceY", 1, 1, 1, 2, Q("27 in")))
sketch3.addConstraint(Sketcher.Constraint("DistanceX", 0, 2, 0, 1, Q("18 in")))
sketch3.addConstraint(Sketcher.Constraint("DistanceX", -1, 1, 0, 2, Q("172 in")))
sketch3.addConstraint(Sketcher.Constraint("DistanceY", 0, 2, -1, 1, Q("190 in")))
pad3 = doc.addObject("PartDesign::Pad", "Pad002")
body.addObject(pad3)
pad3.Profile = sketch3
pad3.Length = Q("1 in")

# Sketch on XZ plane
sketch4 = doc.addObject("Sketcher::SketchObject", "Sketch003")
body.addObject(sketch4)
sketch4.AttachmentSupport = (doc.XZ_Plane, [""])
sketch4.MapMode = "FlatFace"
sketch4.AttachmentOffset = App.Placement(App.Vector(0, 0, -94 * 25.4), App.Rotation())
add_polygon(sketch4, [(-3150, -7823), (-3302, -7823), (-3302, -6096), (-3150, -6096)])  # lines 0-3
sketch4.addConstraint(Sketcher.Constraint("Horizontal", 0))
sketch4.addConstraint(Sketcher.Constraint("Vertical", 1))
sketch4.addConstraint(Sketcher.Constraint("Horizontal", 2))
sketch4.addConstraint(Sketcher.Constraint("Vertical", 3))
sketch4.addConstraint(Sketcher.Constraint("DistanceX", 0, 2, 0, 1, Q("6 in")))
sketch4.addConstraint(Sketcher.Constraint("DistanceY", 1, 1, 1, 2, Q("68 in")))
sketch4.addConstraint(Sketcher.Constraint("DistanceX", 0, 2, -1, 1, Q("130 in")))
sketch4.addConstraint(Sketcher.Constraint("DistanceY", 0, 2, -1, 1, Q("308 in")))
pad4 = doc.addObject("PartDesign::Pad", "Pad003")
body.addObject(pad4)
pad4.Profile = sketch4
pad4.Length = Q("18 in")

# Sketch on XZ plane
sketch5 = doc.addObject("Sketcher::SketchObject", "Sketch004")
body.addObject(sketch5)
sketch5.AttachmentSupport = (doc.XZ_Plane, [""])
sketch5.MapMode = "FlatFace"
sketch5.AttachmentOffset = App.Placement(App.Vector(0, 0, -94 * 25.4), App.Rotation())
add_polygon(sketch5, [(2972, -5918), (3124, -5918), (3124, -6655), (2972, -6655)])  # lines 0-3
add_polygon(sketch5, [(4978, 279), (4978, -584), (4826, -584), (4826, 279)])  # lines 4-7
add_polygon(sketch5, [(1448, -711), (2210, -711), (2210, -864), (1448, -864)])  # lines 8-11
add_polygon(sketch5, [(457, 559), (457, 406), (-406, 406), (-406, 559)])  # lines 12-15
add_polygon(sketch5, [(610, 2184), (457, 2184), (457, 2946), (610, 2946)])  # lines 16-19
add_polygon(sketch5, [(-406, 2946), (-406, 2184), (-559, 2184), (-559, 2946)])  # lines 20-23
add_polygon(sketch5, [(-3302, 1854), (-3302, 1168), (-3454, 1168), (-3454, 1854)])  # lines 24-27
sketch5.addConstraint(Sketcher.Constraint("Horizontal", 0))
sketch5.addConstraint(Sketcher.Constraint("Vertical", 1))
sketch5.addConstraint(Sketcher.Constraint("Horizontal", 2))
sketch5.addConstraint(Sketcher.Constraint("Vertical", 3))
sketch5.addConstraint(Sketcher.Constraint("Vertical", 4))
sketch5.addConstraint(Sketcher.Constraint("Horizontal", 5))
sketch5.addConstraint(Sketcher.Constraint("Vertical", 6))
sketch5.addConstraint(Sketcher.Constraint("Horizontal", 7))
sketch5.addConstraint(Sketcher.Constraint("Horizontal", 8))
sketch5.addConstraint(Sketcher.Constraint("Vertical", 9))
sketch5.addConstraint(Sketcher.Constraint("Horizontal", 10))
sketch5.addConstraint(Sketcher.Constraint("Vertical", 11))
sketch5.addConstraint(Sketcher.Constraint("Vertical", 12))
sketch5.addConstraint(Sketcher.Constraint("Horizontal", 13))
sketch5.addConstraint(Sketcher.Constraint("Vertical", 14))
sketch5.addConstraint(Sketcher.Constraint("Horizontal", 15))
sketch5.addConstraint(Sketcher.Constraint("Horizontal", 16))
sketch5.addConstraint(Sketcher.Constraint("Vertical", 17))
sketch5.addConstraint(Sketcher.Constraint("Horizontal", 18))
sketch5.addConstraint(Sketcher.Constraint("Vertical", 19))
sketch5.addConstraint(Sketcher.Constraint("Vertical", 20))
sketch5.addConstraint(Sketcher.Constraint("Horizontal", 21))
sketch5.addConstraint(Sketcher.Constraint("Vertical", 22))
sketch5.addConstraint(Sketcher.Constraint("Horizontal", 23))
sketch5.addConstraint(Sketcher.Constraint("Vertical", 24))
sketch5.addConstraint(Sketcher.Constraint("Horizontal", 25))
sketch5.addConstraint(Sketcher.Constraint("Vertical", 26))
sketch5.addConstraint(Sketcher.Constraint("Horizontal", 27))
sketch5.addConstraint(Sketcher.Constraint("Horizontal", 19, 2, 20, 2))
sketch5.addConstraint(Sketcher.Constraint("Horizontal", 18, 2, 22, 2))
sketch5.addConstraint(Sketcher.Constraint("Vertical", 15, 2, 16, 2))
sketch5.addConstraint(Sketcher.Constraint("Vertical", 14, 2, 20, 2))
sketch5.addConstraint(Sketcher.Constraint("Equal", 2, 5))
sketch5.addConstraint(Sketcher.Constraint("Equal", 7, 16))
sketch5.addConstraint(Sketcher.Constraint("Equal", 18, 21))
sketch5.addConstraint(Sketcher.Constraint("Equal", 23, 25))
sketch5.addConstraint(Sketcher.Constraint("Equal", 15, 4))
sketch5.addConstraint(Sketcher.Constraint("Equal", 27, 9))
sketch5.addConstraint(Sketcher.Constraint("Equal", 11, 12))
sketch5.addConstraint(Sketcher.Constraint("Equal", 10, 17))
sketch5.addConstraint(Sketcher.Constraint("DistanceX", 0, 1, 0, 2, Q("6 in")))
sketch5.addConstraint(Sketcher.Constraint("DistanceX", 8, 1, 8, 2, Q("30 in")))
sketch5.addConstraint(Sketcher.Constraint("DistanceX", 13, 2, 13, 1, Q("34 in")))
sketch5.addConstraint(Sketcher.Constraint("DistanceY", 1, 2, 1, 1, Q("29 in")))
sketch5.addConstraint(Sketcher.Constraint("DistanceY", 24, 2, 24, 1, Q("27 in")))
sketch5.addConstraint(Sketcher.Constraint("DistanceX", -1, 1, 0, 2, Q("123 in")))
sketch5.addConstraint(Sketcher.Constraint("DistanceY", 0, 2, -1, 1, Q("233 in")))
sketch5.addConstraint(Sketcher.Constraint("DistanceX", -1, 1, 4, 2, Q("196 in")))
sketch5.addConstraint(Sketcher.Constraint("DistanceY", 4, 2, -1, 1, Q("23 in")))
sketch5.addConstraint(Sketcher.Constraint("DistanceX", -1, 1, 8, 2, Q("87 in")))
sketch5.addConstraint(Sketcher.Constraint("DistanceY", 8, 2, -1, 1, Q("28 in")))
sketch5.addConstraint(Sketcher.Constraint("DistanceX", -1, 1, 12, 2, Q("18 in")))
sketch5.addConstraint(Sketcher.Constraint("DistanceY", -1, 1, 12, 2, Q("16 in")))
sketch5.addConstraint(Sketcher.Constraint("DistanceY", -1, 1, 16, 2, Q("86 in")))
sketch5.addConstraint(Sketcher.Constraint("DistanceX", 24, 2, -1, 1, Q("130 in")))
sketch5.addConstraint(Sketcher.Constraint("DistanceY", -1, 1, 24, 2, Q("46 in")))
pad5 = doc.addObject("PartDesign::Pad", "Pad004")
body.addObject(pad5)
pad5.Profile = sketch5
pad5.Length = Q("14 in")

# Sketch on XY plane
sketch6 = doc.addObject("Sketcher::SketchObject", "Sketch005")
body.addObject(sketch6)
sketch6.AttachmentSupport = (doc.XY_Plane, [""])
sketch6.MapMode = "FlatFace"
sketch6.AttachmentOffset = App.Placement(App.Vector(0, 0, 196 * 25.4), App.Rotation())
add_polygon(sketch6, [(3226, 2159), (1448, 2159), (1448, 787), (3226, 787)])  # lines 0-3
add_polygon(sketch6, [(-1905, 2159), (-2692, 2159), (-2692, 787), (-1905, 787)])  # lines 4-7
sketch6.addConstraint(Sketcher.Constraint("Horizontal", 0))
sketch6.addConstraint(Sketcher.Constraint("Vertical", 1))
sketch6.addConstraint(Sketcher.Constraint("Horizontal", 2))
sketch6.addConstraint(Sketcher.Constraint("Vertical", 3))
sketch6.addConstraint(Sketcher.Constraint("Horizontal", 4))
sketch6.addConstraint(Sketcher.Constraint("Vertical", 5))
sketch6.addConstraint(Sketcher.Constraint("Horizontal", 6))
sketch6.addConstraint(Sketcher.Constraint("Vertical", 7))
sketch6.addConstraint(Sketcher.Constraint("Horizontal", 3, 2, 4, 2))
sketch6.addConstraint(Sketcher.Constraint("Horizontal", 2, 2, 5, 2))
sketch6.addConstraint(Sketcher.Constraint("DistanceX", 0, 2, 0, 1, Q("70 in")))
sketch6.addConstraint(Sketcher.Constraint("DistanceX", 4, 2, 4, 1, Q("31 in")))
sketch6.addConstraint(Sketcher.Constraint("DistanceY", -1, 1, 1, 2, Q("31 in")))
sketch6.addConstraint(Sketcher.Constraint("DistanceY", 1, 2, 1, 1, Q("54 in")))
sketch6.addConstraint(Sketcher.Constraint("DistanceX", -1, 1, 0, 2, Q("57 in")))
sketch6.addConstraint(Sketcher.Constraint("DistanceX", 4, 2, -1, 1, Q("106 in")))
pocket1 = doc.addObject("PartDesign::Pocket", "Pocket")
body.addObject(pocket1)
pocket1.Profile = sketch6
pocket1.Length = Q("6 in")

# Sketch on YZ plane
sketch7 = doc.addObject("Sketcher::SketchObject", "Sketch006")
body.addObject(sketch7)
sketch7.AttachmentSupport = (doc.YZ_Plane, [""])
sketch7.MapMode = "FlatFace"
sketch7.AttachmentOffset = App.Placement(App.Vector(0, 0, 196 * 25.4), App.Rotation())
add_polygon(sketch7, [(2159, 1854), (2159, 2718), (787, 2718), (787, 1854)])  # lines 0-3
add_polygon(sketch7, [(1803, -2794), (1803, -1600), (508, -1600), (508, -2794)])  # lines 4-7
sketch7.addConstraint(Sketcher.Constraint("Vertical", 0))
sketch7.addConstraint(Sketcher.Constraint("Horizontal", 1))
sketch7.addConstraint(Sketcher.Constraint("Vertical", 2))
sketch7.addConstraint(Sketcher.Constraint("Horizontal", 3))
sketch7.addConstraint(Sketcher.Constraint("Vertical", 4))
sketch7.addConstraint(Sketcher.Constraint("Horizontal", 5))
sketch7.addConstraint(Sketcher.Constraint("Vertical", 6))
sketch7.addConstraint(Sketcher.Constraint("Horizontal", 7))
sketch7.addConstraint(Sketcher.Constraint("DistanceY", 0, 1, 0, 2, Q("34 in")))
sketch7.addConstraint(Sketcher.Constraint("DistanceY", 4, 1, 4, 2, Q("47 in")))
sketch7.addConstraint(Sketcher.Constraint("DistanceX", -1, 1, 1, 2, Q("31 in")))
sketch7.addConstraint(Sketcher.Constraint("DistanceX", -1, 1, 5, 2, Q("20 in")))
sketch7.addConstraint(Sketcher.Constraint("DistanceX", 1, 2, 1, 1, Q("54 in")))
sketch7.addConstraint(Sketcher.Constraint("DistanceX", 5, 2, 5, 1, Q("51 in")))
sketch7.addConstraint(Sketcher.Constraint("DistanceY", -1, 1, 0, 2, Q("107 in")))
sketch7.addConstraint(Sketcher.Constraint("DistanceY", 4, 2, -1, 1, Q("63 in")))
pocket2 = doc.addObject("PartDesign::Pocket", "Pocket001")
body.addObject(pocket2)
pocket2.Profile = sketch7
pocket2.Length = Q("6 in")

# Sketch on XY plane
sketch8 = doc.addObject("Sketcher::SketchObject", "Sketch007")
body.addObject(sketch8)
sketch8.AttachmentSupport = (doc.XY_Plane, [""])
sketch8.MapMode = "FlatFace"
sketch8.AttachmentOffset = App.Placement(App.Vector(0, 0, -366 * 25.4), App.Rotation())
add_polygon(sketch8, [(-762, 1956), (-1803, 1956), (-1803, 1270), (-762, 1270)])  # lines 0-3
sketch8.addConstraint(Sketcher.Constraint("Horizontal", 0))
sketch8.addConstraint(Sketcher.Constraint("Vertical", 1))
sketch8.addConstraint(Sketcher.Constraint("Horizontal", 2))
sketch8.addConstraint(Sketcher.Constraint("Vertical", 3))
sketch8.addConstraint(Sketcher.Constraint("DistanceX", 0, 2, 0, 1, Q("41 in")))
sketch8.addConstraint(Sketcher.Constraint("DistanceY", -1, 1, 1, 2, Q("50 in")))
sketch8.addConstraint(Sketcher.Constraint("DistanceY", 1, 2, 1, 1, Q("27 in")))
sketch8.addConstraint(Sketcher.Constraint("DistanceX", 0, 2, -1, 1, Q("71 in")))
pocket3 = doc.addObject("PartDesign::Pocket", "Pocket002")
body.addObject(pocket3)
pocket3.Profile = sketch8
pocket3.Length = Q("6 in")

# Sketch on YZ plane
sketch9 = doc.addObject("Sketcher::SketchObject", "Sketch008")
body.addObject(sketch9)
sketch9.AttachmentSupport = (doc.YZ_Plane, [""])
sketch9.MapMode = "FlatFace"
sketch9.AttachmentOffset = App.Placement(App.Vector(0, 0, -196 * 25.4), App.Rotation())
add_polygon(sketch9, [(2159, -1905), (2159, -2692), (787, -2692), (787, -1905)])  # lines 0-3
add_polygon(sketch9, [(2159, 2946), (2159, 1448), (787, 1448), (787, 2946)])  # lines 4-7
sketch9.addConstraint(Sketcher.Constraint("Vertical", 0))
sketch9.addConstraint(Sketcher.Constraint("Horizontal", 1))
sketch9.addConstraint(Sketcher.Constraint("Vertical", 2))
sketch9.addConstraint(Sketcher.Constraint("Horizontal", 3))
sketch9.addConstraint(Sketcher.Constraint("Vertical", 4))
sketch9.addConstraint(Sketcher.Constraint("Horizontal", 5))
sketch9.addConstraint(Sketcher.Constraint("Vertical", 6))
sketch9.addConstraint(Sketcher.Constraint("Horizontal", 7))
sketch9.addConstraint(Sketcher.Constraint("Vertical", 3, 2, 4, 2))
sketch9.addConstraint(Sketcher.Constraint("Vertical", 2, 2, 5, 2))
sketch9.addConstraint(Sketcher.Constraint("DistanceY", 0, 2, 0, 1, Q("31 in")))
sketch9.addConstraint(Sketcher.Constraint("DistanceY", 4, 2, 4, 1, Q("59 in")))
sketch9.addConstraint(Sketcher.Constraint("DistanceX", -1, 1, 1, 2, Q("31 in")))
sketch9.addConstraint(Sketcher.Constraint("DistanceX", 1, 2, 1, 1, Q("54 in")))
sketch9.addConstraint(Sketcher.Constraint("DistanceY", 0, 2, -1, 1, Q("106 in")))
sketch9.addConstraint(Sketcher.Constraint("DistanceY", -1, 1, 4, 2, Q("57 in")))
pocket4 = doc.addObject("PartDesign::Pocket", "Pocket003")
body.addObject(pocket4)
pocket4.Profile = sketch9
pocket4.Length = Q("6 in")
pocket4.Reversed = True

# Sketch on XZ plane
sketch10 = doc.addObject("Sketcher::SketchObject", "Sketch009")
body.addObject(sketch10)
sketch10.AttachmentSupport = (doc.XZ_Plane, [""])
sketch10.MapMode = "FlatFace"
add_polygon(sketch10, [(1499, -9296), (1346, -9296), (1346, -4978), (1499, -4978)])  # lines 0-3
sketch10.addConstraint(Sketcher.Constraint("Horizontal", 0))
sketch10.addConstraint(Sketcher.Constraint("Vertical", 1))
sketch10.addConstraint(Sketcher.Constraint("Horizontal", 2))
sketch10.addConstraint(Sketcher.Constraint("Vertical", 3))
sketch10.addConstraint(Sketcher.Constraint("DistanceX", 0, 2, 0, 1, Q("6 in")))
sketch10.addConstraint(Sketcher.Constraint("DistanceY", 1, 1, 1, 2, Q("170 in")))
sketch10.addConstraint(Sketcher.Constraint("DistanceX", -1, 1, 0, 2, Q("53 in")))
sketch10.addConstraint(Sketcher.Constraint("DistanceY", 0, 2, -1, 1, Q("366 in")))
pad6 = doc.addObject("PartDesign::Pad", "Pad005")
body.addObject(pad6)
pad6.Profile = sketch10
pad6.Length = Q("94 in")
pad6.Reversed = True

doc.recompute()
